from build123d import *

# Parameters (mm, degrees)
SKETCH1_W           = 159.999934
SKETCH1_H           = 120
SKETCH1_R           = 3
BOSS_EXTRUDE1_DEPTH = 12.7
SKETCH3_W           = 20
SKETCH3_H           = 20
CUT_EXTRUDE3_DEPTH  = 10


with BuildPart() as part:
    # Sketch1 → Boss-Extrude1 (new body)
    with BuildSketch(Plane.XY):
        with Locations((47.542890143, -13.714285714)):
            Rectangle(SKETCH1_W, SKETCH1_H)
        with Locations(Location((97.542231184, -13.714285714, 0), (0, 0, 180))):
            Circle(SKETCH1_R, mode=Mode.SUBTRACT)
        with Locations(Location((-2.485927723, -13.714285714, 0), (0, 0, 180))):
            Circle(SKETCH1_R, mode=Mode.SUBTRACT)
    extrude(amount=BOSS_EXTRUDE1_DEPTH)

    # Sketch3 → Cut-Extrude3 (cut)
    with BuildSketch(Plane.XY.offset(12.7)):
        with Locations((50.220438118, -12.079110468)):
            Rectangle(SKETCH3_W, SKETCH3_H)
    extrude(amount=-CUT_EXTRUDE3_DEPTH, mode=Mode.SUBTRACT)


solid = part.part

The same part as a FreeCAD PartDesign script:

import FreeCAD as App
import Part
import Sketcher

doc = App.newDocument("Part")
body = doc.addObject("PartDesign::Body", "Body")

# Sketch on XY plane
sketch1 = body.newObject("Sketcher::SketchObject", "Sketch")
sketch1.AttachmentSupport = (doc.getObject("XY_Plane"), [""])
sketch1.MapMode = "FlatFace"
sketch1.addGeometry(Part.LineSegment(App.Vector(-32.5, 46.3, 0), App.Vector(-32.5, -73.7, 0)), False)
sketch1.addGeometry(Part.LineSegment(App.Vector(-32.5, -73.7, 0), App.Vector(127.5, -73.7, 0)), False)
sketch1.addGeometry(Part.LineSegment(App.Vector(127.5, -73.7, 0), App.Vector(127.5, 46.3, 0)), False)
sketch1.addGeometry(Part.LineSegment(App.Vector(127.5, 46.3, 0), App.Vector(-32.5, 46.3, 0)), False)
sketch1.addGeometry(Part.Circle(App.Vector(-2.5, -13.7, 0), App.Vector(0, 0, 1), 3), False)
sketch1.addGeometry(Part.Circle(App.Vector(97.5, -13.7, 0), App.Vector(0, 0, 1), 3), False)
sketch1.addConstraint(Sketcher.Constraint("Coincident", 0, 2, 1, 1))
sketch1.addConstraint(Sketcher.Constraint("Coincident", 1, 2, 2, 1))
sketch1.addConstraint(Sketcher.Constraint("Coincident", 2, 2, 3, 1))
sketch1.addConstraint(Sketcher.Constraint("Coincident", 3, 2, 0, 1))
sketch1.addConstraint(Sketcher.Constraint("Vertical", 0))
sketch1.addConstraint(Sketcher.Constraint("Horizontal", 1))
sketch1.addConstraint(Sketcher.Constraint("Vertical", 2))
sketch1.addConstraint(Sketcher.Constraint("Horizontal", 3))
sketch1.addConstraint(Sketcher.Constraint("Equal", 4, 5))
sketch1.addConstraint(Sketcher.Constraint("Horizontal", 4, 3, 5, 3))
sketch1.addConstraint(Sketcher.Constraint("Diameter", 4, 6.0))
sketch1.addConstraint(Sketcher.Constraint("DistanceY", 0, 2, 0, 1, 120.0))
sketch1.addConstraint(Sketcher.Constraint("DistanceY", 0, 2, 4, 3, 60.0))
sketch1.addConstraint(Sketcher.Constraint("DistanceX", 1, 1, 1, 2, 159.999934))
sketch1.addConstraint(Sketcher.Constraint("DistanceX", -1, 1, 5, 3, 97.542231))
sketch1.addConstraint(Sketcher.Constraint("DistanceX", 4, 3, 5, 3, 100.028159))
sketch1.addConstraint(Sketcher.Constraint("DistanceX", 0, 2, 4, 3, 29.971149))
sketch1.addConstraint(Sketcher.Constraint("DistanceY", 4, 3, -1, 1, 13.714286))
pad1 = body.newObject("PartDesign::Pad", "Pad")
pad1.Profile = sketch1
pad1.Length = 12.7

# Sketch on XY plane
sketch2 = body.newObject("Sketcher::SketchObject", "Sketch001")
sketch2.AttachmentSupport = (doc.getObject("XY_Plane"), [""])
sketch2.MapMode = "FlatFace"
sketch2.AttachmentOffset = App.Placement(App.Vector(0, 0, 12.7), App.Rotation())
sketch2.addGeometry(Part.LineSegment(App.Vector(40, -2, 0), App.Vector(40, -22, 0)), False)
sketch2.addGeometry(Part.LineSegment(App.Vector(40, -22, 0), App.Vector(60, -22, 0)), False)
sketch2.addGeometry(Part.LineSegment(App.Vector(60, -22, 0), App.Vector(60, -2, 0)), False)
sketch2.addGeometry(Part.LineSegment(App.Vector(60, -2, 0), App.Vector(40, -2, 0)), False)
sketch2.addConstraint(Sketcher.Constraint("Coincident", 0, 2, 1, 1))
sketch2.addConstraint(Sketcher.Constraint("Coincident", 1, 2, 2, 1))
sketch2.addConstraint(Sketcher.Constraint("Coincident", 2, 2, 3, 1))
sketch2.addConstraint(Sketcher.Constraint("Coincident", 3, 2, 0, 1))
sketch2.addConstraint(Sketcher.Constraint("Vertical", 0))
sketch2.addConstraint(Sketcher.Constraint("Horizontal", 1))
sketch2.addConstraint(Sketcher.Constraint("Vertical", 2))
sketch2.addConstraint(Sketcher.Constraint("Horizontal", 3))
sketch2.addConstraint(Sketcher.Constraint("Equal", 3, 0))
sketch2.addConstraint(Sketcher.Constraint("DistanceX", 1, 1, 1, 2, 20.0))
sketch2.addConstraint(Sketcher.Constraint("DistanceX", -1, 1, 0, 2, 40.220438))
sketch2.addConstraint(Sketcher.Constraint("DistanceY", 0, 2, -1, 1, 22.07911))
pocket1 = body.newObject("PartDesign::Pocket", "Pocket")
pocket1.Profile = sketch2
pocket1.Length = 10

doc.recompute()
